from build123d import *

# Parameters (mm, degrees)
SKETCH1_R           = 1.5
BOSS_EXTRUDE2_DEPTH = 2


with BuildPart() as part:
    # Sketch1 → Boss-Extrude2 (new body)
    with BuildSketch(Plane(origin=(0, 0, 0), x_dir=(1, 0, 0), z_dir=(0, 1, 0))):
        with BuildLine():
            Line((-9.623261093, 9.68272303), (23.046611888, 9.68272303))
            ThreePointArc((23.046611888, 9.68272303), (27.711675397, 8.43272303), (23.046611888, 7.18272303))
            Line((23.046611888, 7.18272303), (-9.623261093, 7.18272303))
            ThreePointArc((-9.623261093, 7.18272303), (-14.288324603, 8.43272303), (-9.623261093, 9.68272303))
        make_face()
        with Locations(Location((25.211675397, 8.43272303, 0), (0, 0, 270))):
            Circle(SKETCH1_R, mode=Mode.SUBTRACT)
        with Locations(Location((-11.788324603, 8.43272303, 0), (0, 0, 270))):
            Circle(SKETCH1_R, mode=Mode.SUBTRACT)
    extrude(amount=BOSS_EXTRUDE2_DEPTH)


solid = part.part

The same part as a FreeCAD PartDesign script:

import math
import FreeCAD as App
import Part
import Sketcher

doc = App.newDocument("Part")
body = doc.addObject("PartDesign::Body", "Body")

# Sketch on XZ plane
sketch1 = body.newObject("Sketcher::SketchObject", "Sketch")
sketch1.AttachmentSupport = (doc.getObject("XZ_Plane"), [""])
sketch1.MapMode = "FlatFace"
sketch1.addGeometry(Part.LineSegment(App.Vector(23.046612, -9.682723, 0), App.Vector(-9.623261, -9.682723, 0)), False)
sketch1.addGeometry(Part.ArcOfCircle(Part.Circle(App.Vector(-11.788325, -8.432723, 0), App.Vector(0, 0, 1), 2.5), math.radians(30), math.radians(330)), False)
sketch1.addGeometry(Part.LineSegment(App.Vector(-9.623261, -7.182723, 0), App.Vector(23.046612, -7.182723, 0)), False)
sketch1.addGeometry(Part.ArcOfCircle(Part.Circle(App.Vector(25.211675, -8.432723, 0), App.Vector(0, 0, 1), 2.5), math.radians(-150), math.radians(150)), False)
sketch1.addGeometry(Part.Circle(App.Vector(25.211675, -8.432723, 0), App.Vector(0, 0, 1), 1.5), False)
sketch1.addGeometry(Part.Circle(App.Vector(-11.788325, -8.432723, 0), App.Vector(0, 0, 1), 1.5), False)
sketch1.addConstraint(Sketcher.Constraint("Coincident", 0, 2, 1, 2))
sketch1.addConstraint(Sketcher.Constraint("Coincident", 1, 1, 2, 1))
sketch1.addConstraint(Sketcher.Constraint("Coincident", 2, 2, 3, 2))
sketch1.addConstraint(Sketcher.Constraint("Coincident", 3, 1, 0, 1))
sketch1.addConstraint(Sketcher.Constraint("Horizontal", 0))
sketch1.addConstraint(Sketcher.Constraint("Horizontal", 2))
sketch1.addConstraint(Sketcher.Constraint("Coincident", 4, 3, 3, 3))
sketch1.addConstraint(Sketcher.Constraint("Coincident", 5, 3, 1, 3))
sketch1.addConstraint(Sketcher.Constraint("Equal", 1, 3))
sketch1.addConstraint(Sketcher.Constraint("Equal", 4, 5))
sketch1.addConstraint(Sketcher.Constraint("Horizontal", 1, 3, 3, 3))
sketch1.addConstraint(Sketcher.Constraint("Vertical", 0, 2, 1, 1))
sketch1.addConstraint(Sketcher.Constraint("Diameter", 4, 3.0))
sketch1.addConstraint(Sketcher.Constraint("Radius", 1, 2.5))
sketch1.addConstraint(Sketcher.Constraint("DistanceX", 1, 3, 3, 3, 37.0))
sketch1.addConstraint(Sketcher.Constraint("DistanceY", 0, 2, 1, 1, 2.5))
sketch1.addConstraint(Sketcher.Constraint("DistanceX", 0, 2, -1, 1, 9.623261))
sketch1.addConstraint(Sketcher.Constraint("DistanceY", 1, 3, -1, 1, 8.432723))
pad1 = body.newObject("PartDesign::Pad", "Pad")
pad1.Profile = sketch1
pad1.Length = 2
pad1.Reversed = True

doc.recompute()
